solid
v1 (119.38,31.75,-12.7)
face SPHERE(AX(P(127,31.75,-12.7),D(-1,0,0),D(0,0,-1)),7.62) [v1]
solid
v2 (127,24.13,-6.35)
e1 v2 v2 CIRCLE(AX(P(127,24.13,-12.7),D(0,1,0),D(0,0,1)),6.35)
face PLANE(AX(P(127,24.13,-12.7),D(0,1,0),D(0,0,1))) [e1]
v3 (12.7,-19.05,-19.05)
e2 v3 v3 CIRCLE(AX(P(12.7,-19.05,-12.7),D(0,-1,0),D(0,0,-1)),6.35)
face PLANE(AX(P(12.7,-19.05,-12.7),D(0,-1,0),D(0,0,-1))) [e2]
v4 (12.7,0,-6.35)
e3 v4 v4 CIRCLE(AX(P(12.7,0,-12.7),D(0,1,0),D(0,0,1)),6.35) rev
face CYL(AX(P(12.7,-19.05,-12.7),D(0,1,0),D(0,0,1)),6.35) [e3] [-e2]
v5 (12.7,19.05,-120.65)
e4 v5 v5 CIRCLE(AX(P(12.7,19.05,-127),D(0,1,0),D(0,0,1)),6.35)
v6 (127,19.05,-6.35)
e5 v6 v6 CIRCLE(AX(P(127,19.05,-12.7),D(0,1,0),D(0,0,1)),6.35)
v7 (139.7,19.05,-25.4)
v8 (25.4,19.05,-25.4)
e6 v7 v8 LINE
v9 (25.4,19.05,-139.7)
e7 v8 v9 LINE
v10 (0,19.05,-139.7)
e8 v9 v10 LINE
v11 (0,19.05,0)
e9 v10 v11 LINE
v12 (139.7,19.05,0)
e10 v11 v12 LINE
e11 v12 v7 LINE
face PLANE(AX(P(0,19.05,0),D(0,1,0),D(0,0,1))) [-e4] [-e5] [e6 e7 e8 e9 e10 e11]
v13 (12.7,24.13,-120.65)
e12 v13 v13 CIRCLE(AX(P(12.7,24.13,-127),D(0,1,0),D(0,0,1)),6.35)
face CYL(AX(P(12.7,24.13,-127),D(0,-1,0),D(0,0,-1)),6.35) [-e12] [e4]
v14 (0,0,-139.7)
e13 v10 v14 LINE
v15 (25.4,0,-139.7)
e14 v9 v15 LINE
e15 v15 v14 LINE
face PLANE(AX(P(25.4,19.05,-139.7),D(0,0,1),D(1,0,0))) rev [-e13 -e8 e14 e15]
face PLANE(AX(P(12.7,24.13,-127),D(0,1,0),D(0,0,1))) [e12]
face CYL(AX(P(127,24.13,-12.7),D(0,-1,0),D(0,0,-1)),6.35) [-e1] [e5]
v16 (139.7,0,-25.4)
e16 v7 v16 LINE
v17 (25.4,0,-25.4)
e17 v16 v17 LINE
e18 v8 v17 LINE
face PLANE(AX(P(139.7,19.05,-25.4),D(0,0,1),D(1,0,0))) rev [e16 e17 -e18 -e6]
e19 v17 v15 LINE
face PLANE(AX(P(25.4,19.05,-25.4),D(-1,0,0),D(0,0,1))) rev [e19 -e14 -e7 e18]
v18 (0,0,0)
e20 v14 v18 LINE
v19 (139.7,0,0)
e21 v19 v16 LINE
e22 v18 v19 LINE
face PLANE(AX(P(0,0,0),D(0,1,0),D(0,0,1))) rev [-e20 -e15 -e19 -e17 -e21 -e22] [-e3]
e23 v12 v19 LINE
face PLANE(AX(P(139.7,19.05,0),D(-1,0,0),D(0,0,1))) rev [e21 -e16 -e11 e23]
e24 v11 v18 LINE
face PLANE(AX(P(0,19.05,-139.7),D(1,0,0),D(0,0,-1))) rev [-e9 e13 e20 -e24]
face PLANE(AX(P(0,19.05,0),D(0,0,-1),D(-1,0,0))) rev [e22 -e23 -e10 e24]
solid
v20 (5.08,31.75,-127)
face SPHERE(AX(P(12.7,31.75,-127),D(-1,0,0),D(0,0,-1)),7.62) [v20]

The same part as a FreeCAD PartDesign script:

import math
import FreeCAD as App
import Part
import Sketcher
from FreeCAD import Vector
Q = App.Units.Quantity


def add_polygon(sketch, points):
    """Adds a closed chain of lines whose ends are joined by coincident constraints."""
    first, n = sketch.GeometryCount, len(points)
    for a, b in zip(points, points[1:] + points[:1]):
        sketch.addGeometry(Part.LineSegment(App.Vector(*a, 0), App.Vector(*b, 0)), False)
    for i in range(n):
        sketch.addConstraint(Sketcher.Constraint("Coincident", first + i, 2, first + (i + 1) % n, 1))

doc = App.newDocument("Part")
body = doc.addObject("PartDesign::Body", "Body")

# Sketch on XZ plane
sketch1 = body.newObject("Sketcher::SketchObject", "Sketch")
sketch1.AttachmentSupport = (doc.getObject("XZ_Plane"), [""])
sketch1.MapMode = "FlatFace"
add_polygon(sketch1, [(0, -140), (0, 0), (140, 0), (140, -25), (25, -25), (25, -140)])  # lines 0-5
sketch1.addConstraint([
    Sketcher.Constraint("Vertical", 0),
    Sketcher.Constraint("Horizontal", 1),
    Sketcher.Constraint("Vertical", 2),
    Sketcher.Constraint("Horizontal", 3),
    Sketcher.Constraint("Vertical", 4),
    Sketcher.Constraint("Horizontal", 5),
    Sketcher.Constraint("Coincident", 0, 2, -1, 1),
    Sketcher.Constraint("Equal", 1, 0),
    Sketcher.Constraint("Equal", 5, 2),
    Sketcher.Constraint("DistanceX", 5, 2, 5, 1, Q("1 in")),
    Sketcher.Constraint("DistanceX", 1, 1, 1, 2, Q("5.5 in")),
])
pad1 = body.newObject("PartDesign::Pad", "Pad")
pad1.Profile = sketch1
pad1.Length = Q("0.75 in")
pad1.Reversed = True

# Sketch on XZ plane
sketch2 = body.newObject("Sketcher::SketchObject", "Sketch001")
sketch2.AttachmentSupport = (doc.getObject("XZ_Plane"), [""])
sketch2.MapMode = "FlatFace"
sketch2.AttachmentOffset = App.Placement(Vector(0, 0, -0.75 * 25.4), App.Rotation())
sketch2.addGeometry([
    Part.Circle(Vector(127, -13, 0), Vector(0, 0, 1), 6),
    Part.Circle(Vector(13, -127, 0), Vector(0, 0, 1), 6),
], False)
sketch2.addConstraint([
    Sketcher.Constraint("Equal", 0, 1),
    Sketcher.Constraint("Diameter", 0, Q("0.5 in")),
    Sketcher.Constraint("DistanceX", -1, 1, 0, 3, Q("5 in")),
    Sketcher.Constraint("DistanceY", 1, 3, -1, 1, Q("5 in")),
    Sketcher.Constraint("DistanceY", 0, 3, -1, 1, Q("0.5 in")),
    Sketcher.Constraint("DistanceX", -1, 1, 1, 3, Q("0.5 in")),
])
pad2 = body.newObject("PartDesign::Pad", "Pad001")
pad2.Profile = sketch2
pad2.Length = Q("0.2 in")
pad2.Reversed = True

# Sketch on XZ plane
sketch3 = body.newObject("Sketcher::SketchObject", "Sketch002")
sketch3.AttachmentSupport = (doc.getObject("XZ_Plane"), [""])
sketch3.MapMode = "FlatFace"
sketch3.addGeometry(Part.Circle(Vector(13, -13, 0), Vector(0, 0, 1), 6), False)
sketch3.addConstraint([
    Sketcher.Constraint("Diameter", 0, Q("0.5 in")),
    Sketcher.Constraint("DistanceX", -1, 1, 0, 3, Q("0.5 in")),
    Sketcher.Constraint("DistanceY", 0, 3, -1, 1, Q("0.5 in")),
])
pad3 = body.newObject("PartDesign::Pad", "Pad002")
pad3.Profile = sketch3
pad3.Length = Q("0.75 in")
body2 = doc.addObject("PartDesign::Body", "Body001")

# Sketch on XZ plane
sketch4 = body2.newObject("Sketcher::SketchObject", "Sketch003")
sketch4.AttachmentSupport = (doc.getObject("XZ_Plane001"), [""])
sketch4.MapMode = "FlatFace"
sketch4.AttachmentOffset = App.Placement(Vector(0, 0, -1.25 * 25.4), App.Rotation())
sketch4.addGeometry([
    Part.LineSegment(Vector(20, -127, 0), Vector(5, -127, 0)),
    Part.ArcOfCircle(Part.Circle(Vector(13, -127, 0), Vector(0, 0, 1), 8), math.radians(0), math.radians(180)),
], False)
sketch4.addGeometry(Part.LineSegment(Vector(5, -127, 0), Vector(20, -127, 0)), True)  # axis
sketch4.addConstraint([
    Sketcher.Constraint("Coincident", 0, 1, 1, 1),
    Sketcher.Constraint("Coincident", 1, 2, 0, 2),
    Sketcher.Constraint("Horizontal", 0),
    Sketcher.Constraint("Horizontal", 2),
    Sketcher.Constraint("Coincident", 2, 1, 1, 2),
    Sketcher.Constraint("Horizontal", 1, 3, 0, 1),
    Sketcher.Constraint("Equal", 0, 2),
    Sketcher.Constraint("Radius", 1, Q("0.3 in")),
    Sketcher.Constraint("DistanceY", 1, 3, -1, 1, Q("5 in")),
    Sketcher.Constraint("DistanceX", -1, 1, 1, 3, Q("0.5 in")),
])
revolution = body2.newObject("PartDesign::Revolution", "Revolution")
revolution.Profile = sketch4
revolution.ReferenceAxis = (sketch4, ["Axis0"])
revolution.Angle = 360
body3 = doc.addObject("PartDesign::Body", "Body002")

# Sketch on XZ plane
sketch5 = body3.newObject("Sketcher::SketchObject", "Sketch004")
sketch5.AttachmentSupport = (doc.getObject("XZ_Plane002"), [""])
sketch5.MapMode = "FlatFace"
sketch5.AttachmentOffset = App.Placement(Vector(0, 0, -1.25 * 25.4), App.Rotation())
sketch5.addGeometry([
    Part.LineSegment(Vector(135, -13, 0), Vector(119, -13, 0)),
    Part.ArcOfCircle(Part.Circle(Vector(127, -13, 0), Vector(0, 0, 1), 8), math.radians(0), math.radians(180)),
], False)
sketch5.addGeometry(Part.LineSegment(Vector(119, -13, 0), Vector(135, -13, 0)), True)  # axis
sketch5.addConstraint([
    Sketcher.Constraint("Coincident", 0, 1, 1, 1),
    Sketcher.Constraint("Coincident", 1, 2, 0, 2),
    Sketcher.Constraint("Horizontal", 0),
    Sketcher.Constraint("Horizontal", 2),
    Sketcher.Constraint("Coincident", 2, 1, 1, 2),
    Sketcher.Constraint("Horizontal", 1, 3, 0, 1),
    Sketcher.Constraint("Equal", 0, 2),
    Sketcher.Constraint("Radius", 1, Q("0.3 in")),
    Sketcher.Constraint("DistanceX", -1, 1, 1, 3, Q("5 in")),
    Sketcher.Constraint("DistanceY", 1, 3, -1, 1, Q("0.5 in")),
])
revolution2 = body3.newObject("PartDesign::Revolution", "Revolution001")
revolution2.Profile = sketch5
revolution2.ReferenceAxis = (sketch5, ["Axis0"])
revolution2.Angle = 360

doc.recompute()
